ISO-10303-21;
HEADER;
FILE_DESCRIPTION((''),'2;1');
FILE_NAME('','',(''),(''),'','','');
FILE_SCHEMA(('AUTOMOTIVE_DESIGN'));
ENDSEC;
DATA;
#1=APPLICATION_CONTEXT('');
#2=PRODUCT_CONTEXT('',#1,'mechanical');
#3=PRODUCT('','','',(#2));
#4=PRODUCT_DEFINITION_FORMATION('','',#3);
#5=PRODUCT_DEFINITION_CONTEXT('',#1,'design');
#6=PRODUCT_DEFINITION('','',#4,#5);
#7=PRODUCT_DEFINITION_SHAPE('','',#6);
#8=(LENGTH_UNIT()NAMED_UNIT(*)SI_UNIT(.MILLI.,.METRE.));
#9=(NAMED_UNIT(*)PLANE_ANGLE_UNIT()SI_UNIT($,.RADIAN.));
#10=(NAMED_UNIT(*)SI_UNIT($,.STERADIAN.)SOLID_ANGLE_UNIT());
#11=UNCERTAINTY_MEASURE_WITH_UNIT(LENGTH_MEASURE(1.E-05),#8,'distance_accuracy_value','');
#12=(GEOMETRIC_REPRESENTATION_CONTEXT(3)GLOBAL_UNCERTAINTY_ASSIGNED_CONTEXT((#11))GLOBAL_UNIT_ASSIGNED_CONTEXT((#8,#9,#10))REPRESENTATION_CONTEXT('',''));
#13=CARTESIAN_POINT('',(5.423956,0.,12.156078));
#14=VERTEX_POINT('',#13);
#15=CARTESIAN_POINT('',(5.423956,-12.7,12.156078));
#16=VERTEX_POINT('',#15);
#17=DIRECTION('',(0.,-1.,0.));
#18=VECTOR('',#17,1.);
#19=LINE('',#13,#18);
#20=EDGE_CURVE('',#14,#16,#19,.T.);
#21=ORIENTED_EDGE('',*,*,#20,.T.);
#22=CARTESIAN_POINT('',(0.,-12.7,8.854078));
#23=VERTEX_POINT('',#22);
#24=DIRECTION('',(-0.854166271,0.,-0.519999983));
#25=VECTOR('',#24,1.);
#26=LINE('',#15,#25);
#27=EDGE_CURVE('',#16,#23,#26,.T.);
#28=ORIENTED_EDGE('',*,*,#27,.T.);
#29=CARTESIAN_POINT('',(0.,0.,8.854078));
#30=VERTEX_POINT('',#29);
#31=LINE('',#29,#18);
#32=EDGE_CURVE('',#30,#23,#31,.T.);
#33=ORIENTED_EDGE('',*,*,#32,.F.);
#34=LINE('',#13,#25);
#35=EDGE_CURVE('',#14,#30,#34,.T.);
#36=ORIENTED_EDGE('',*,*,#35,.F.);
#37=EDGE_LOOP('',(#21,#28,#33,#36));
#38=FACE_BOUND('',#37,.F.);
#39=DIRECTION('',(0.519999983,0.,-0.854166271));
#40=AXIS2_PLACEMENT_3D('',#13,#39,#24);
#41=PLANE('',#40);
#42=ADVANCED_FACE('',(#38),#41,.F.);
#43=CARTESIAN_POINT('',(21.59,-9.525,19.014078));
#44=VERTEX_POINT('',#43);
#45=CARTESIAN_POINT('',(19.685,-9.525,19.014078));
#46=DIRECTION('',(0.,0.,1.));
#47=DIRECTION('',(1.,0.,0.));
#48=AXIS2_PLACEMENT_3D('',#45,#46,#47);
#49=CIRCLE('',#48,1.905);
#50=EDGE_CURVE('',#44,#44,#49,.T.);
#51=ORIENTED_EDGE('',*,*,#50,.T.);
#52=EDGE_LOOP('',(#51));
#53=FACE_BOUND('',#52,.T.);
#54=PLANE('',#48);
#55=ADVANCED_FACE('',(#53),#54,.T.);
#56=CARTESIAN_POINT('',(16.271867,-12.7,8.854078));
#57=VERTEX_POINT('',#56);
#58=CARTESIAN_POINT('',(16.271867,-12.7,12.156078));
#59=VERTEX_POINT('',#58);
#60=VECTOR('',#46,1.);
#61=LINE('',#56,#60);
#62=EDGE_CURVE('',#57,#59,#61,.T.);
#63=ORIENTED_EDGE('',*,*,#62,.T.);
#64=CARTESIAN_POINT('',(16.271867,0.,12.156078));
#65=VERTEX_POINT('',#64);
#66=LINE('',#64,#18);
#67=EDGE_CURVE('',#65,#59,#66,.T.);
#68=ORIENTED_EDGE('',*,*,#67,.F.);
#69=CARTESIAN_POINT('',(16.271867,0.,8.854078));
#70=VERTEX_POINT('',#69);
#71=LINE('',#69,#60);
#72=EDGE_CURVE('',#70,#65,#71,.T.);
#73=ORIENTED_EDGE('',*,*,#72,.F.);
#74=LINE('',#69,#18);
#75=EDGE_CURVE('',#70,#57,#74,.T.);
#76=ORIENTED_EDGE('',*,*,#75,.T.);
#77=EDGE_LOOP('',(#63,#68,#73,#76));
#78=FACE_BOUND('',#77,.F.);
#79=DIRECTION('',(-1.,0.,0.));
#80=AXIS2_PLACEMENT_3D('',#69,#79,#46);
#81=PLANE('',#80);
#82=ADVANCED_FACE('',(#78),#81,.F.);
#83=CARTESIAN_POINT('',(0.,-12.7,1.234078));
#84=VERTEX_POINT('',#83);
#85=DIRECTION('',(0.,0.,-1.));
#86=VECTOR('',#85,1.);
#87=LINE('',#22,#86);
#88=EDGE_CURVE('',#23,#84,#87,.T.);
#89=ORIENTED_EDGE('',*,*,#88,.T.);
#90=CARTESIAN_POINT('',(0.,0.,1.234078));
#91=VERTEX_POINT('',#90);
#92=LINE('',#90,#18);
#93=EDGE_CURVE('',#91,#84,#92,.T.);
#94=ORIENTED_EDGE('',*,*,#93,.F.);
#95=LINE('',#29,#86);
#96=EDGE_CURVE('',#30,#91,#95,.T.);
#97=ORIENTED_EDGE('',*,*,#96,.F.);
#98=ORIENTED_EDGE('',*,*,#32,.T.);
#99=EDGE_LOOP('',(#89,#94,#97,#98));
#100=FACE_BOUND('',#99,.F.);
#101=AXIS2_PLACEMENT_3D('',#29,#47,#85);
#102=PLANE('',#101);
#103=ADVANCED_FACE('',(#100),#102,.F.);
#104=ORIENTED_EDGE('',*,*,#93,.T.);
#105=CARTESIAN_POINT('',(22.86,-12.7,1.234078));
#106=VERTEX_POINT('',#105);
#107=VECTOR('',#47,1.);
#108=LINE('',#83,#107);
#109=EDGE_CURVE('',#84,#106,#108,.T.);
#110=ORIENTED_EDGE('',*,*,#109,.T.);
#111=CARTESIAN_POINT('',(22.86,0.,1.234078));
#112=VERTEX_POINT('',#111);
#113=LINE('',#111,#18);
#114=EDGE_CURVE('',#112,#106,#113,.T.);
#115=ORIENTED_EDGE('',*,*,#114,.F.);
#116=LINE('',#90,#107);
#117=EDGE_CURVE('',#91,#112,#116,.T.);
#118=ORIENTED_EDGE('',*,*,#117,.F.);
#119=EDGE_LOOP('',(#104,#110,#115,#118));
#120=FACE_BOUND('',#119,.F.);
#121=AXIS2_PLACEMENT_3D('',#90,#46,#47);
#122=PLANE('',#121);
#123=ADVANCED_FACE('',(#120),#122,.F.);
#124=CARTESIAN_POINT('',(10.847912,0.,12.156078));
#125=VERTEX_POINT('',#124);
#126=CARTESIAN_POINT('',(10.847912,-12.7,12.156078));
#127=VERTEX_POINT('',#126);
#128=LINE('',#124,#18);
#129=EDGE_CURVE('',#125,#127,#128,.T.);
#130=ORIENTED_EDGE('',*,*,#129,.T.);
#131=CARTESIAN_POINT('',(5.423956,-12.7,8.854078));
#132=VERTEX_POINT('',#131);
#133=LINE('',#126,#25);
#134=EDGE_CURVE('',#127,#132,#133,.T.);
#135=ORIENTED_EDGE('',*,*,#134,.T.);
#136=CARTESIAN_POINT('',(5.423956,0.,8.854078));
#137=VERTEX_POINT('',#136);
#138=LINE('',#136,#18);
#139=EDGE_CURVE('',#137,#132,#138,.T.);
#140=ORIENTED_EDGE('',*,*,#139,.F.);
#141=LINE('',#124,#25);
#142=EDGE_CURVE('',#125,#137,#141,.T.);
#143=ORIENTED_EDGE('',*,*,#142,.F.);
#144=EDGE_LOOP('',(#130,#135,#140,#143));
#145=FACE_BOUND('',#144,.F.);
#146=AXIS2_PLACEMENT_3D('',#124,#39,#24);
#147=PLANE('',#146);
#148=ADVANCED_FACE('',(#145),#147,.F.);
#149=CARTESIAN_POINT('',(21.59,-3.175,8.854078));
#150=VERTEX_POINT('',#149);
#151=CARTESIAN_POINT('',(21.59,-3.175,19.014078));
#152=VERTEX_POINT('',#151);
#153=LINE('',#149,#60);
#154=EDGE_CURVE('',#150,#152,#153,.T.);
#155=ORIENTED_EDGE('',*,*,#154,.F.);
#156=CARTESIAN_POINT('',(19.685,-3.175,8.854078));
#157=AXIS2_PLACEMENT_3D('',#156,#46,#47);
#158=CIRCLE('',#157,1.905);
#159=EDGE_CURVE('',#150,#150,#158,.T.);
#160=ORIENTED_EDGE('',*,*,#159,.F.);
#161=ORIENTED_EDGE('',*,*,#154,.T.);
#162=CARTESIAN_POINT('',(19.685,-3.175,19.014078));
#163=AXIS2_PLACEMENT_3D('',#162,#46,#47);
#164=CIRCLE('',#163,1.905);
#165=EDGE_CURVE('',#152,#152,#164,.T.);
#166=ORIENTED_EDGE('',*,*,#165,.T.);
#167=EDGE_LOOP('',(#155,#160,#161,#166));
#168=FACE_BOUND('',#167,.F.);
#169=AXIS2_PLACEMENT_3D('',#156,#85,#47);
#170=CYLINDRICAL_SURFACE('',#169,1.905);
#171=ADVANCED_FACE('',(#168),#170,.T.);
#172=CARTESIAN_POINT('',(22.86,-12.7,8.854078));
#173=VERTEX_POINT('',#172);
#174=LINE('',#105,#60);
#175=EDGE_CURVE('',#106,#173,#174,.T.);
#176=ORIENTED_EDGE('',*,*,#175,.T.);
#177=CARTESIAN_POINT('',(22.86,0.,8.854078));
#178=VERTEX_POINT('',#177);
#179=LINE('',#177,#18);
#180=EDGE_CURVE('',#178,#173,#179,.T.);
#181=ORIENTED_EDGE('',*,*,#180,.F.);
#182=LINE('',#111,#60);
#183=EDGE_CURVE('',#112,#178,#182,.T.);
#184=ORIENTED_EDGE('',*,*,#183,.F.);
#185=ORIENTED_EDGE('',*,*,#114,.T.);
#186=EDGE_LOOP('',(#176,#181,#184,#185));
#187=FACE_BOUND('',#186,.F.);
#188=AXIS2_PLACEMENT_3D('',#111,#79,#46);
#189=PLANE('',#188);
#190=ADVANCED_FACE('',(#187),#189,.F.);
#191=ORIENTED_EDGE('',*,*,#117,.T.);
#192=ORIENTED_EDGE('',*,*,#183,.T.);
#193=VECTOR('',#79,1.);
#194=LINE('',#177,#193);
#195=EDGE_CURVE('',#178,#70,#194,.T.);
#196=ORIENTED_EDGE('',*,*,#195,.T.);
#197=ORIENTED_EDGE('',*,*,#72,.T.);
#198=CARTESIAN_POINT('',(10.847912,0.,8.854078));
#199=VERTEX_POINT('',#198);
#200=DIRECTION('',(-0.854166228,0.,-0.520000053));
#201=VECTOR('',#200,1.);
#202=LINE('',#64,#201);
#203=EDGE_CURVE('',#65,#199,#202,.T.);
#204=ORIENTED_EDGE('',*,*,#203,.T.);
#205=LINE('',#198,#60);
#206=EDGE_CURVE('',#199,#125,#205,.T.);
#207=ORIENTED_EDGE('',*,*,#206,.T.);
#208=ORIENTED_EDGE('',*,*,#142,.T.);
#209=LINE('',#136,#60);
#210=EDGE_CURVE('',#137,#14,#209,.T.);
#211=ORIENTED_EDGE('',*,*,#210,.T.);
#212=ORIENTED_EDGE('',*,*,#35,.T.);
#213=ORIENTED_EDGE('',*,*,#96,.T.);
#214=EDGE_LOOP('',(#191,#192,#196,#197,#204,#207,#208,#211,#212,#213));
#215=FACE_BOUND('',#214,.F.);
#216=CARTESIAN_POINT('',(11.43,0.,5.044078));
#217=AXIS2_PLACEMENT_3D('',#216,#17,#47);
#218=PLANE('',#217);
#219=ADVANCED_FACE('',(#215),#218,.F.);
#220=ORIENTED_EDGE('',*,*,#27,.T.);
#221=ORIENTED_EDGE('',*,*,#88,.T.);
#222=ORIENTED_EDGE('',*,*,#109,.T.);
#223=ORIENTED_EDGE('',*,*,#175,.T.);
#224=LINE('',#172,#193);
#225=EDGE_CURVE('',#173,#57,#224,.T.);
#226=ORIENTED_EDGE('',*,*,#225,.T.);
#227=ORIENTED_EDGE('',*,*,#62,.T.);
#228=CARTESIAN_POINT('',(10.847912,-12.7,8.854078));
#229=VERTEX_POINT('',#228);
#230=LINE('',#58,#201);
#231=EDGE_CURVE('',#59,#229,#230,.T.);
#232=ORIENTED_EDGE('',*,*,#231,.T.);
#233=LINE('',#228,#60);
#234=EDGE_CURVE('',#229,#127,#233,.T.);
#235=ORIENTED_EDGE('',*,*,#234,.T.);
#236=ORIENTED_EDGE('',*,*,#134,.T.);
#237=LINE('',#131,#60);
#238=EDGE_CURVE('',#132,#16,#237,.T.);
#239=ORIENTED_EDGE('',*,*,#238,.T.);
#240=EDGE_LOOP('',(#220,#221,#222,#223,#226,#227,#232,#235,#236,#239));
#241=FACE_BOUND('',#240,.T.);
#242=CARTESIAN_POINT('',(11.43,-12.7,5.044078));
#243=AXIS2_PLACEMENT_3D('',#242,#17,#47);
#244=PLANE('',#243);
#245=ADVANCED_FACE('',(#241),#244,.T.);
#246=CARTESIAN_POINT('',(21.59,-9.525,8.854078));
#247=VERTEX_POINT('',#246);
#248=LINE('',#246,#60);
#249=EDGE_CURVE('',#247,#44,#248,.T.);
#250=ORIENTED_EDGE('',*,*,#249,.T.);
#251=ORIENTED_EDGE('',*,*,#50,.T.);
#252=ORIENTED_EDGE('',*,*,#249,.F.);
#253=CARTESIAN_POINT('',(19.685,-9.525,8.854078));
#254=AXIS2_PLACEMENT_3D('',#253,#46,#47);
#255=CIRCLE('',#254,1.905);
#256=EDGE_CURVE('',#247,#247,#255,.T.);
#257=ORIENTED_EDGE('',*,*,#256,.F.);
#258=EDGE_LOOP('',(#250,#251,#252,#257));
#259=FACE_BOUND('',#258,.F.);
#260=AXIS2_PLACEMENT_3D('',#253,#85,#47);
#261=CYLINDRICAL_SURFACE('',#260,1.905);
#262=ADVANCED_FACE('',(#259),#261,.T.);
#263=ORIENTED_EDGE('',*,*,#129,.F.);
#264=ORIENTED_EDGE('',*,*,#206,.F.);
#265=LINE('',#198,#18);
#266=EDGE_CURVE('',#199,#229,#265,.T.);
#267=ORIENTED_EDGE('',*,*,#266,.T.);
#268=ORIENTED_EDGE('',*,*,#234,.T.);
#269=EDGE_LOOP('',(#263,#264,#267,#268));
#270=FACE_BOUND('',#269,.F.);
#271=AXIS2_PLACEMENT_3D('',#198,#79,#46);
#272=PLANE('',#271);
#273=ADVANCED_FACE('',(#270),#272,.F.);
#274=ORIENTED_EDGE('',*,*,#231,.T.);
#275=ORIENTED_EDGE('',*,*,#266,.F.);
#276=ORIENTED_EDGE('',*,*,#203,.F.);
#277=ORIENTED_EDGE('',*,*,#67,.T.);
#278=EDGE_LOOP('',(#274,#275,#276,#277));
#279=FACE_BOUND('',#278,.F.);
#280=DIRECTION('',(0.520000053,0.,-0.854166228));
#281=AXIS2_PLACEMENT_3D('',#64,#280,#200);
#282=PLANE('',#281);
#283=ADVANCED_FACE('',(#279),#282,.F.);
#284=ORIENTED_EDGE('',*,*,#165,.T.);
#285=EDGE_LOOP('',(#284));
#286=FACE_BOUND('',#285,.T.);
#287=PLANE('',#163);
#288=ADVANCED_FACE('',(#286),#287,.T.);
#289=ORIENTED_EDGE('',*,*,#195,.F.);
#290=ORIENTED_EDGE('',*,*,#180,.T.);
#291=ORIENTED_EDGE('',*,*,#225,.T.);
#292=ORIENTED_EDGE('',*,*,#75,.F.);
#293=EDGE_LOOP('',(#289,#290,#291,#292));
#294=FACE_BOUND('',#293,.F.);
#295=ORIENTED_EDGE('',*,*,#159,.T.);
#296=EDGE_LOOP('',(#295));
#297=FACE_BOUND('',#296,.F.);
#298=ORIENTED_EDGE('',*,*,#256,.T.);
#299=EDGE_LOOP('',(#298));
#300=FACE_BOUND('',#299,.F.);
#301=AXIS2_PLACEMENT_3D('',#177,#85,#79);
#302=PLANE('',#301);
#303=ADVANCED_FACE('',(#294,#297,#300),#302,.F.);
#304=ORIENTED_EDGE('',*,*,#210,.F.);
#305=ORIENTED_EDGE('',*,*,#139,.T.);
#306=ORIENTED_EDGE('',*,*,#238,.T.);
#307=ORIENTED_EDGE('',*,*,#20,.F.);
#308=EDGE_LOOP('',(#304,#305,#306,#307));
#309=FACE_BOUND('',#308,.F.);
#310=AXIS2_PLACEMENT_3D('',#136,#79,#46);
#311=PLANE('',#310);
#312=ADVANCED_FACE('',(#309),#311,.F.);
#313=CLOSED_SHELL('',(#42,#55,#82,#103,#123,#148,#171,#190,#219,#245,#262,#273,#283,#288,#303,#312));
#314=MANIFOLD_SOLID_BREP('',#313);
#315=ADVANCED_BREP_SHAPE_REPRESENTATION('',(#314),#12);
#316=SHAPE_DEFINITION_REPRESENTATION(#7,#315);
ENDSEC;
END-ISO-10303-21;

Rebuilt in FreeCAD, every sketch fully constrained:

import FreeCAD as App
import Part
import Sketcher
from FreeCAD import Vector
Q = App.Units.Quantity

doc = App.newDocument("Part")
body = doc.addObject("PartDesign::Body", "Body")

sketch1 = doc.addObject("Sketcher::SketchObject", "Sketch")
body.addObject(sketch1)
sketch1.AttachmentSupport = (doc.XZ_Plane, [""])
sketch1.MapMode = "FlatFace"
sketch1.addGeometry(Part.LineSegment(Vector(0, 8.9, 0), Vector(0, 1.2, 0)), False)
sketch1.addGeometry(Part.LineSegment(Vector(0, 1.2, 0), Vector(22.9, 1.2, 0)), False)
sketch1.addGeometry(Part.LineSegment(Vector(22.9, 1.2, 0), Vector(22.9, 8.9, 0)), False)
sketch1.addGeometry(Part.LineSegment(Vector(22.9, 8.9, 0), Vector(16.3, 8.9, 0)), False)
sketch1.addGeometry(Part.LineSegment(Vector(16.3, 8.9, 0), Vector(16.3, 12.2, 0)), False)
sketch1.addGeometry(Part.LineSegment(Vector(16.3, 12.2, 0), Vector(10.8, 8.9, 0)), False)
sketch1.addGeometry(Part.LineSegment(Vector(10.8, 8.9, 0), Vector(10.8, 12.2, 0)), False)
sketch1.addGeometry(Part.LineSegment(Vector(10.8, 12.2, 0), Vector(5.4, 8.9, 0)), False)
sketch1.addGeometry(Part.LineSegment(Vector(5.4, 8.9, 0), Vector(5.4, 12.2, 0)), False)
sketch1.addGeometry(Part.LineSegment(Vector(5.4, 12.2, 0), Vector(0, 8.9, 0)), False)
sketch1.addConstraint(Sketcher.Constraint("Coincident", 0, 2, 1, 1))
sketch1.addConstraint(Sketcher.Constraint("Coincident", 1, 2, 2, 1))
sketch1.addConstraint(Sketcher.Constraint("Coincident", 2, 2, 3, 1))
sketch1.addConstraint(Sketcher.Constraint("Coincident", 3, 2, 4, 1))
sketch1.addConstraint(Sketcher.Constraint("Coincident", 4, 2, 5, 1))
sketch1.addConstraint(Sketcher.Constraint("Coincident", 5, 2, 6, 1))
sketch1.addConstraint(Sketcher.Constraint("Coincident", 6, 2, 7, 1))
sketch1.addConstraint(Sketcher.Constraint("Coincident", 7, 2, 8, 1))
sketch1.addConstraint(Sketcher.Constraint("Coincident", 8, 2, 9, 1))
sketch1.addConstraint(Sketcher.Constraint("Coincident", 9, 2, 0, 1))
sketch1.addConstraint(Sketcher.Constraint("Vertical", 0))
sketch1.addConstraint(Sketcher.Constraint("Horizontal", 1))
sketch1.addConstraint(Sketcher.Constraint("Vertical", 2))
sketch1.addConstraint(Sketcher.Constraint("Horizontal", 3))
sketch1.addConstraint(Sketcher.Constraint("Vertical", 4))
sketch1.addConstraint(Sketcher.Constraint("Vertical", 6))
sketch1.addConstraint(Sketcher.Constraint("Vertical", 8))
sketch1.addConstraint(Sketcher.Constraint("PointOnObject", 0, 2, -2))
sketch1.addConstraint(Sketcher.Constraint("Parallel", 5, 7))
sketch1.addConstraint(Sketcher.Constraint("Parallel", 7, 9))
sketch1.addConstraint(Sketcher.Constraint("Horizontal", 3, 2, 5, 2))
sketch1.addConstraint(Sketcher.Constraint("Horizontal", 4, 2, 6, 2))
sketch1.addConstraint(Sketcher.Constraint("Horizontal", 5, 2, 7, 2))
sketch1.addConstraint(Sketcher.Constraint("Horizontal", 6, 2, 8, 2))
sketch1.addConstraint(Sketcher.Constraint("Horizontal", 7, 2, 9, 2))
sketch1.addConstraint(Sketcher.Constraint("DistanceX", 1, 1, 1, 2, Q("0.9 in")))
sketch1.addConstraint(Sketcher.Constraint("DistanceY", 0, 2, 0, 1, Q("0.3 in")))
sketch1.addConstraint(Sketcher.Constraint("DistanceY", 4, 1, 4, 2, Q("0.13 in")))
sketch1.addConstraint(Sketcher.Constraint("Distance", 5, Q("0.25 in")))
sketch1.addConstraint(Sketcher.Constraint("DistanceY", -1, 1, 4, 2, Q("12.156078 mm")))
pad1 = doc.addObject("PartDesign::Pad", "Pad")
body.addObject(pad1)
pad1.Profile = sketch1
pad1.Length = Q("0.5 in")

sketch2 = doc.addObject("Sketcher::SketchObject", "Sketch001")
body.addObject(sketch2)
sketch2.AttachmentSupport = (doc.XY_Plane, [""])
sketch2.MapMode = "FlatFace"
sketch2.AttachmentOffset = App.Placement(Vector(0, 0, 8.854078), App.Rotation())
sketch2.addGeometry(Part.Circle(Vector(19.7, -3.2, 0), Vector(0, 0, 1), 1.9), False)
sketch2.addGeometry(Part.Circle(Vector(19.7, -9.5, 0), Vector(0, 0, 1), 1.9), False)
sketch2.addConstraint(Sketcher.Constraint("Equal", 0, 1))
sketch2.addConstraint(Sketcher.Constraint("Vertical", 0, 3, 1, 3))
sketch2.addConstraint(Sketcher.Constraint("Diameter", 0, Q("0.15 in")))
sketch2.addConstraint(Sketcher.Constraint("DistanceY", 1, 3, 0, 3, Q("0.25 in")))
sketch2.addConstraint(Sketcher.Constraint("DistanceX", -1, 1, 0, 3, Q("0.775 in")))
sketch2.addConstraint(Sketcher.Constraint("DistanceY", 0, 3, -1, 1, Q("0.125 in")))
pad2 = doc.addObject("PartDesign::Pad", "Pad001")
body.addObject(pad2)
pad2.Profile = sketch2
pad2.Length = Q("0.4 in")

doc.recompute()
